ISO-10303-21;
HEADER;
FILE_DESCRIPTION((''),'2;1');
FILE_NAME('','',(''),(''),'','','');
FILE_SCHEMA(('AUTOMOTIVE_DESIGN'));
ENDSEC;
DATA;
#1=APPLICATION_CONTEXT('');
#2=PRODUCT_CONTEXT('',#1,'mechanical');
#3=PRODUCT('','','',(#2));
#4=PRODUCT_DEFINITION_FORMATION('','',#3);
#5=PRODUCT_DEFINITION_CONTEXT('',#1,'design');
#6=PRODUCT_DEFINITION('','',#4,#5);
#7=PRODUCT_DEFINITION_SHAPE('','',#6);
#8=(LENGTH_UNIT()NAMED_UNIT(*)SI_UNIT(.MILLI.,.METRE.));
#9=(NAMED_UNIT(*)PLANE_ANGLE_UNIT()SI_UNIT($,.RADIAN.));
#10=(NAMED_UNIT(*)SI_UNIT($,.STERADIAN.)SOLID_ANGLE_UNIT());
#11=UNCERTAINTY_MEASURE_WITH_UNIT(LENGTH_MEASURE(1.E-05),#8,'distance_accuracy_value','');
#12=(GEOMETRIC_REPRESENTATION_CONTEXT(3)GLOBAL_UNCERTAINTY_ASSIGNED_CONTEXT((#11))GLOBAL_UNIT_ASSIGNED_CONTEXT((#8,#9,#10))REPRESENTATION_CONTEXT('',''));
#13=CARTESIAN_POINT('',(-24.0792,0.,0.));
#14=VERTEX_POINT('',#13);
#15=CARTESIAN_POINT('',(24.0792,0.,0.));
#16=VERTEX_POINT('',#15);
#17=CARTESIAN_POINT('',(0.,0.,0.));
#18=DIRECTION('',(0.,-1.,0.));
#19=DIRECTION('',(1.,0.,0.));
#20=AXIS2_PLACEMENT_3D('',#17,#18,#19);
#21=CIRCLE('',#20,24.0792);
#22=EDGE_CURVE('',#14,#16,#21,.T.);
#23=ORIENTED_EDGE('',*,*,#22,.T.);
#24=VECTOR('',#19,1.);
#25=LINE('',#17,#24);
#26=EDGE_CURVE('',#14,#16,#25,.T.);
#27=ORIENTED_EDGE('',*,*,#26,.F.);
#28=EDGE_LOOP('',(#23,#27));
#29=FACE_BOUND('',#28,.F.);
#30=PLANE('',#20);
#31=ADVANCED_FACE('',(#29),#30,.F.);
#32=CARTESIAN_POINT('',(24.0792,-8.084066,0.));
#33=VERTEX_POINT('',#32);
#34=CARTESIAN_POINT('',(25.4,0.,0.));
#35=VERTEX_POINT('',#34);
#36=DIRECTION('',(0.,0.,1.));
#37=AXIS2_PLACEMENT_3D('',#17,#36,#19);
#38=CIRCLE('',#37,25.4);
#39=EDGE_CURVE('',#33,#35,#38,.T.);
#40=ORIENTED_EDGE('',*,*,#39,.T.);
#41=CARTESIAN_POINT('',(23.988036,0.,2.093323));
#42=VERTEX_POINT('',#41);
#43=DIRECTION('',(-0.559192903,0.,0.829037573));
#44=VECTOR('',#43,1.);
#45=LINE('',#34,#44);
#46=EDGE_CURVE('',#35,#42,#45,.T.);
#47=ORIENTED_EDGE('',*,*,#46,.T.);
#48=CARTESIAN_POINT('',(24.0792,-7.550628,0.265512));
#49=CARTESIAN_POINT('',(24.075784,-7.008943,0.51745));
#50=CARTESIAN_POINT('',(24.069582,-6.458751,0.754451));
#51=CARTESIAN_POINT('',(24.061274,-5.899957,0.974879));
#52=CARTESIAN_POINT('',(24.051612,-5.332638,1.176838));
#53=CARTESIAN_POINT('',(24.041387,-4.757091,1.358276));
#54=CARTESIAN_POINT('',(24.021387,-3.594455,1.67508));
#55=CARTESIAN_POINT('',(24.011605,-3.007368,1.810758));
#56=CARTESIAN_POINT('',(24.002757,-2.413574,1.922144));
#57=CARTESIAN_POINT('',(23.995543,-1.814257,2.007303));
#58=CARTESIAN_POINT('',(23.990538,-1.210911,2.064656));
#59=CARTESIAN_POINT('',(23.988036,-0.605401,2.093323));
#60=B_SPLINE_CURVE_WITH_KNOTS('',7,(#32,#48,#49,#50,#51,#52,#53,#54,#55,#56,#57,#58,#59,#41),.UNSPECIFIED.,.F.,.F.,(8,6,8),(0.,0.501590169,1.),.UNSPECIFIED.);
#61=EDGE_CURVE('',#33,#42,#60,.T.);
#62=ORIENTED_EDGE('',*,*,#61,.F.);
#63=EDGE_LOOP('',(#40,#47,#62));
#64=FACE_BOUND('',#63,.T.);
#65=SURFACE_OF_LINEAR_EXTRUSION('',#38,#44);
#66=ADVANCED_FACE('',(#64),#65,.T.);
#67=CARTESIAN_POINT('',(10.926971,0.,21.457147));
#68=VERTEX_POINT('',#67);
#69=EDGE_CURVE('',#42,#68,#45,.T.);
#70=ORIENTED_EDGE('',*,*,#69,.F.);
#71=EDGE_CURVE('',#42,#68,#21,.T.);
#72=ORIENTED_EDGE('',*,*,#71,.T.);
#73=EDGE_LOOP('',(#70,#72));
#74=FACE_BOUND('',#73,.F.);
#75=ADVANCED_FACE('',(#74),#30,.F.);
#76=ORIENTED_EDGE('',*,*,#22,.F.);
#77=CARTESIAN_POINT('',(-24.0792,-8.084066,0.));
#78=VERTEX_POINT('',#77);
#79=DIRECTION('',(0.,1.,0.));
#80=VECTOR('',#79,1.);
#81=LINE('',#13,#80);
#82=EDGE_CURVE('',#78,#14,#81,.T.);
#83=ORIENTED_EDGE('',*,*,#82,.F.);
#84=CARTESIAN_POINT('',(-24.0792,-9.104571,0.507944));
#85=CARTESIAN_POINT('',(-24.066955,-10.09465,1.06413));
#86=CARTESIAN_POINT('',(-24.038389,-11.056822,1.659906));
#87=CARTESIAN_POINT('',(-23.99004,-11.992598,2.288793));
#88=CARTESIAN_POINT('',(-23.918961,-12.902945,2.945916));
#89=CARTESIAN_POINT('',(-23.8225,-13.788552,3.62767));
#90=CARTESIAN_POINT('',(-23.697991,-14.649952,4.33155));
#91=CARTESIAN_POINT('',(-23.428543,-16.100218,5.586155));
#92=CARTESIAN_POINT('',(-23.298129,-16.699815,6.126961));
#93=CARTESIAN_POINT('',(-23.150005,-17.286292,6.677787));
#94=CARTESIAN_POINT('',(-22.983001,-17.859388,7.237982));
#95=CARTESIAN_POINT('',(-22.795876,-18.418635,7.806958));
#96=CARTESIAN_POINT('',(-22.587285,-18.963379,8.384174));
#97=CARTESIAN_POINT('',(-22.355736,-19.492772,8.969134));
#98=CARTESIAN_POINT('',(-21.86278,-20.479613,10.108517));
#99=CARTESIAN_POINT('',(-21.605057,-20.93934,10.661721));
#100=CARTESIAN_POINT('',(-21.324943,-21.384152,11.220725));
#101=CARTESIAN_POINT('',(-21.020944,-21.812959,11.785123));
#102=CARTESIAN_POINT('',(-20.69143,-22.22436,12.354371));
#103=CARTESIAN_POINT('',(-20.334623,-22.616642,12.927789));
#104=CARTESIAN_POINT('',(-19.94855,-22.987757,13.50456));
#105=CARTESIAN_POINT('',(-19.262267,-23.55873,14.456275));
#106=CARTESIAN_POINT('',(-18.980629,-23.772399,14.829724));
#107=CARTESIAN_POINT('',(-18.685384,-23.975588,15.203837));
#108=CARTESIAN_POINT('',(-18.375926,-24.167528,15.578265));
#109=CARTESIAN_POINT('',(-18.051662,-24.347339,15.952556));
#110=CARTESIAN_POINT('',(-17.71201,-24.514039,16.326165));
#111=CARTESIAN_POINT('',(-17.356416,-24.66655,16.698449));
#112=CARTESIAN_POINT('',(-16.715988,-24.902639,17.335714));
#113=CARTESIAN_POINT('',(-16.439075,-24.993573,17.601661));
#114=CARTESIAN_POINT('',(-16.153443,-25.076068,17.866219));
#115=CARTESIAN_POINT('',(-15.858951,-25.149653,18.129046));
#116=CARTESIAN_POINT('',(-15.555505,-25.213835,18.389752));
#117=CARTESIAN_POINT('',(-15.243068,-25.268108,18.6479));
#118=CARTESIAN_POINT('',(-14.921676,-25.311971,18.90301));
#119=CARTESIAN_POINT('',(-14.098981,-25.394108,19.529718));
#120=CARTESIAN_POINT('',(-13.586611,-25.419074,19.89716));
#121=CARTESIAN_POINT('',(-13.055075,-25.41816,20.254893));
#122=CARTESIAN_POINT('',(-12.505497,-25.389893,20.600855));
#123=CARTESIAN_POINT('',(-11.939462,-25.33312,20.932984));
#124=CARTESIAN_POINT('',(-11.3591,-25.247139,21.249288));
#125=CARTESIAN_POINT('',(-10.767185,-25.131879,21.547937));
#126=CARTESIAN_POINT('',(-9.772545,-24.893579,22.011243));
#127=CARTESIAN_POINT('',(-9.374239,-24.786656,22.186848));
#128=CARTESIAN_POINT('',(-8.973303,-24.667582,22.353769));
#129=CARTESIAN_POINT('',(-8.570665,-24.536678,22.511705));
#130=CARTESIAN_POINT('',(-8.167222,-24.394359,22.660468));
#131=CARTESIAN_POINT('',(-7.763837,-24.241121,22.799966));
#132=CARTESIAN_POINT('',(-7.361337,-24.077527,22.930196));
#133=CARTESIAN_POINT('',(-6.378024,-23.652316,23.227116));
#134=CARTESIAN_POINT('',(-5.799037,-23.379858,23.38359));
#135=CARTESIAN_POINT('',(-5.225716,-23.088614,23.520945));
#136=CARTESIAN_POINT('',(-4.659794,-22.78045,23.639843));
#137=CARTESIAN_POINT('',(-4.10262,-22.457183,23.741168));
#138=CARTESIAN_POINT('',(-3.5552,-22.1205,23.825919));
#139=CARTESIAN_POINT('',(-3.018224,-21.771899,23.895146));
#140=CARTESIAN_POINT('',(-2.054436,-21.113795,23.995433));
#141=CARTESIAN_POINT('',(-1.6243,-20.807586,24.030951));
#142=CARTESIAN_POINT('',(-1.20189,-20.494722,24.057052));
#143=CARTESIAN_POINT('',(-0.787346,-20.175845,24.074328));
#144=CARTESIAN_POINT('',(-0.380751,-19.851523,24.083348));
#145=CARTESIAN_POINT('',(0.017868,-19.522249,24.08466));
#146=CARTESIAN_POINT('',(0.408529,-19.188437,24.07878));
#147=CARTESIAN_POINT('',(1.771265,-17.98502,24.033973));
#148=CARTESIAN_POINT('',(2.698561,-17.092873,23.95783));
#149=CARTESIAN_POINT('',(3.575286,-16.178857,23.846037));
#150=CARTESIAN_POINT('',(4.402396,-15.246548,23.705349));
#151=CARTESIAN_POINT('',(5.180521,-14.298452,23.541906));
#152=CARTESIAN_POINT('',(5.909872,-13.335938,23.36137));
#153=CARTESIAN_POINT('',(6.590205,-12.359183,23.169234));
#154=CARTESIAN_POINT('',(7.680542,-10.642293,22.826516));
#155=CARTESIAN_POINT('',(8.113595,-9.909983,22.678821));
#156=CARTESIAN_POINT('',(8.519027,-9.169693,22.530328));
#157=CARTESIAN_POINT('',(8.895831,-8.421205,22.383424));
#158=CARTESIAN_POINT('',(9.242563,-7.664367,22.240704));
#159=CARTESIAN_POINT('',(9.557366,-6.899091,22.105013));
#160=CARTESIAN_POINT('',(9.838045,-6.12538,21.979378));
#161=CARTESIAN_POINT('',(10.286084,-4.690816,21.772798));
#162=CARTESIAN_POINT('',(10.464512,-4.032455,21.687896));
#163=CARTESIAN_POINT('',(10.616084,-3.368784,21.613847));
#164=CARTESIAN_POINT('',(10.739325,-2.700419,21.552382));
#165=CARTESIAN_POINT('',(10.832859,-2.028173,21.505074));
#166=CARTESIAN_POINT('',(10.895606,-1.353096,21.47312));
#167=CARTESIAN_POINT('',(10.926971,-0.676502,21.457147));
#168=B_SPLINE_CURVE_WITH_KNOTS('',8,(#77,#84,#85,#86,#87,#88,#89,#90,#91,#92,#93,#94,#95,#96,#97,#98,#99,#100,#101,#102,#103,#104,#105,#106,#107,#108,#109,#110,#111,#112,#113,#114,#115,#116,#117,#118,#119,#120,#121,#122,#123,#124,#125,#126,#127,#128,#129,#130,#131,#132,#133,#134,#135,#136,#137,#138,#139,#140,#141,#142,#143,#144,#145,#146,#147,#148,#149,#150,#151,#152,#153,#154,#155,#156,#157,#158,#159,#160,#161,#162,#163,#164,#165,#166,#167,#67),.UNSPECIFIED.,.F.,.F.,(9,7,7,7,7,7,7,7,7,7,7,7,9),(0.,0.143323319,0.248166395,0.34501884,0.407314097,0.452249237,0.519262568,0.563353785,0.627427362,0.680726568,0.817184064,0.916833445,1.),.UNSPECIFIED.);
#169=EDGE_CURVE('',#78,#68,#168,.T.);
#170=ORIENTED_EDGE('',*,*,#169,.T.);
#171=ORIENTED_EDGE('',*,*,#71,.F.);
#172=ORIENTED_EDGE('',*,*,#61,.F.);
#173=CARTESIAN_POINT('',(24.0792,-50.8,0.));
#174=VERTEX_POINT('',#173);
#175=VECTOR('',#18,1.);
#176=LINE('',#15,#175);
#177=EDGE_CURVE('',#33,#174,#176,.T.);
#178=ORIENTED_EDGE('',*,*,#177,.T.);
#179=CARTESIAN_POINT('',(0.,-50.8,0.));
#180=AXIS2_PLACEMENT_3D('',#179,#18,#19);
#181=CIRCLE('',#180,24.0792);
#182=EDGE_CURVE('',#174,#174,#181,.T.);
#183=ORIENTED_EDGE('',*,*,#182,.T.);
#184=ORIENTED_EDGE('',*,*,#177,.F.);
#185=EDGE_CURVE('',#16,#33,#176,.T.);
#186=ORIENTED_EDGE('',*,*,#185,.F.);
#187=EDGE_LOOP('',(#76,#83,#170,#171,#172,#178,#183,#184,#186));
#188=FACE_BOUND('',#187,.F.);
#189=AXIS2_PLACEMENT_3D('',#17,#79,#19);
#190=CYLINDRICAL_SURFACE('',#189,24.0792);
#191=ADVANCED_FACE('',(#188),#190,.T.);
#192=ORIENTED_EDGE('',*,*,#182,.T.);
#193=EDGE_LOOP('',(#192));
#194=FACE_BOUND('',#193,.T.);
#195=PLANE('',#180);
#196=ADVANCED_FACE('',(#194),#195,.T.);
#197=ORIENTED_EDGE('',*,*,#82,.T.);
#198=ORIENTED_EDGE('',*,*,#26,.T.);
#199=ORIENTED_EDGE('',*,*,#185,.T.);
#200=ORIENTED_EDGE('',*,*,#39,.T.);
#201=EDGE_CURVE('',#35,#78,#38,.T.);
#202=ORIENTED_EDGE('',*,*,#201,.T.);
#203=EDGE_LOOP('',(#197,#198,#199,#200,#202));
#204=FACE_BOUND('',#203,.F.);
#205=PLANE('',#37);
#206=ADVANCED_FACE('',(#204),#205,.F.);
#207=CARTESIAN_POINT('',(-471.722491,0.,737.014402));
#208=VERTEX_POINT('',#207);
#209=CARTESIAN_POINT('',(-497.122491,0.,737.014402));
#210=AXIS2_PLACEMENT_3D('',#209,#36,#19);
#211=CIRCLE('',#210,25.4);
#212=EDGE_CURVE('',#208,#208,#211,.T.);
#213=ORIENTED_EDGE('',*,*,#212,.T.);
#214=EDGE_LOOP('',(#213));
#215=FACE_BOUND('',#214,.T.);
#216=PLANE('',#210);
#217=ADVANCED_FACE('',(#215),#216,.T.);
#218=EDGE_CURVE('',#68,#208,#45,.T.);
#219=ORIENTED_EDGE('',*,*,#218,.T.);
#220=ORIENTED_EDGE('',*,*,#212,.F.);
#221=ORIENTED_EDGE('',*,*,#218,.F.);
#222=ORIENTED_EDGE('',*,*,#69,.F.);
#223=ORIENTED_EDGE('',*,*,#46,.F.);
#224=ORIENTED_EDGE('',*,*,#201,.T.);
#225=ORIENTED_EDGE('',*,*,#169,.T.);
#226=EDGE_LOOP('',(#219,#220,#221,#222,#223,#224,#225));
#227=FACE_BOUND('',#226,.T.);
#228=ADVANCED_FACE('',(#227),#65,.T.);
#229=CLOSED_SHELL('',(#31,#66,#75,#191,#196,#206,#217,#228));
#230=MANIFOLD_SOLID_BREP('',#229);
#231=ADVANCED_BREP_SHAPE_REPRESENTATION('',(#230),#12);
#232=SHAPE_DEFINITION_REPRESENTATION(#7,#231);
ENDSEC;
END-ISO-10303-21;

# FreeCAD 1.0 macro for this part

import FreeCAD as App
import Part
import Sketcher
from FreeCAD import Vector
Q = App.Units.Quantity

doc = App.newDocument("Part")
body = doc.addObject("PartDesign::Body", "Body")

# Sketch on XY plane
sketch1 = body.newObject("Sketcher::SketchObject", "Sketch")
sketch1.AttachmentSupport = (doc.getObject("XY_Plane"), [""])
sketch1.MapMode = "FlatFace"
sketch1.addGeometry(Part.Circle(Vector(0, 0, 0), Vector(0, 0, 1), 25), False)
sketch1.addConstraint(Sketcher.Constraint("Coincident", 0, 3, -1, 1))
sketch1.addConstraint(Sketcher.Constraint("Diameter", 0, Q("2 in")))

# Sketch on an angled plane
sketch2 = body.newObject("Sketcher::SketchObject", "Sketch001")
sketch2.Placement = App.Placement(Vector(0, 0, 0), App.Rotation(Vector(-0.559192903, 0, 0.829037573), Vector(0, 1, 0), Vector(-0.829037573, 0, -0.559192903), "ZXY"))
sketch2.addGeometry(Part.LineSegment(Vector(0, 0, 0), Vector(889, 0, 0)), False)
sketch2.addConstraint(Sketcher.Constraint("Horizontal", 0))
sketch2.addConstraint(Sketcher.Constraint("Coincident", 0, 1, -1, 1))
sketch2.addConstraint(Sketcher.Constraint("DistanceX", 0, 1, 0, 2, Q("35 in")))
doc.recompute()

additivepipe = body.newObject("PartDesign::AdditivePipe", "AdditivePipe")
additivepipe.Profile = sketch1
additivepipe.Spine = (sketch2, ["Edge1"])

# Sketch on XZ plane
sketch3 = body.newObject("Sketcher::SketchObject", "Sketch002")
sketch3.AttachmentSupport = (doc.getObject("XZ_Plane"), [""])
sketch3.MapMode = "FlatFace"
sketch3.addGeometry(Part.Circle(Vector(0, 0, 0), Vector(0, 0, 1), 24), False)
sketch3.addConstraint(Sketcher.Constraint("Coincident", 0, 3, -1, 1))
sketch3.addConstraint(Sketcher.Constraint("Diameter", 0, Q("1.896 in")))
pad1 = body.newObject("PartDesign::Pad", "Pad")
pad1.Profile = sketch3
pad1.Length = Q("2 in")

doc.recompute()
